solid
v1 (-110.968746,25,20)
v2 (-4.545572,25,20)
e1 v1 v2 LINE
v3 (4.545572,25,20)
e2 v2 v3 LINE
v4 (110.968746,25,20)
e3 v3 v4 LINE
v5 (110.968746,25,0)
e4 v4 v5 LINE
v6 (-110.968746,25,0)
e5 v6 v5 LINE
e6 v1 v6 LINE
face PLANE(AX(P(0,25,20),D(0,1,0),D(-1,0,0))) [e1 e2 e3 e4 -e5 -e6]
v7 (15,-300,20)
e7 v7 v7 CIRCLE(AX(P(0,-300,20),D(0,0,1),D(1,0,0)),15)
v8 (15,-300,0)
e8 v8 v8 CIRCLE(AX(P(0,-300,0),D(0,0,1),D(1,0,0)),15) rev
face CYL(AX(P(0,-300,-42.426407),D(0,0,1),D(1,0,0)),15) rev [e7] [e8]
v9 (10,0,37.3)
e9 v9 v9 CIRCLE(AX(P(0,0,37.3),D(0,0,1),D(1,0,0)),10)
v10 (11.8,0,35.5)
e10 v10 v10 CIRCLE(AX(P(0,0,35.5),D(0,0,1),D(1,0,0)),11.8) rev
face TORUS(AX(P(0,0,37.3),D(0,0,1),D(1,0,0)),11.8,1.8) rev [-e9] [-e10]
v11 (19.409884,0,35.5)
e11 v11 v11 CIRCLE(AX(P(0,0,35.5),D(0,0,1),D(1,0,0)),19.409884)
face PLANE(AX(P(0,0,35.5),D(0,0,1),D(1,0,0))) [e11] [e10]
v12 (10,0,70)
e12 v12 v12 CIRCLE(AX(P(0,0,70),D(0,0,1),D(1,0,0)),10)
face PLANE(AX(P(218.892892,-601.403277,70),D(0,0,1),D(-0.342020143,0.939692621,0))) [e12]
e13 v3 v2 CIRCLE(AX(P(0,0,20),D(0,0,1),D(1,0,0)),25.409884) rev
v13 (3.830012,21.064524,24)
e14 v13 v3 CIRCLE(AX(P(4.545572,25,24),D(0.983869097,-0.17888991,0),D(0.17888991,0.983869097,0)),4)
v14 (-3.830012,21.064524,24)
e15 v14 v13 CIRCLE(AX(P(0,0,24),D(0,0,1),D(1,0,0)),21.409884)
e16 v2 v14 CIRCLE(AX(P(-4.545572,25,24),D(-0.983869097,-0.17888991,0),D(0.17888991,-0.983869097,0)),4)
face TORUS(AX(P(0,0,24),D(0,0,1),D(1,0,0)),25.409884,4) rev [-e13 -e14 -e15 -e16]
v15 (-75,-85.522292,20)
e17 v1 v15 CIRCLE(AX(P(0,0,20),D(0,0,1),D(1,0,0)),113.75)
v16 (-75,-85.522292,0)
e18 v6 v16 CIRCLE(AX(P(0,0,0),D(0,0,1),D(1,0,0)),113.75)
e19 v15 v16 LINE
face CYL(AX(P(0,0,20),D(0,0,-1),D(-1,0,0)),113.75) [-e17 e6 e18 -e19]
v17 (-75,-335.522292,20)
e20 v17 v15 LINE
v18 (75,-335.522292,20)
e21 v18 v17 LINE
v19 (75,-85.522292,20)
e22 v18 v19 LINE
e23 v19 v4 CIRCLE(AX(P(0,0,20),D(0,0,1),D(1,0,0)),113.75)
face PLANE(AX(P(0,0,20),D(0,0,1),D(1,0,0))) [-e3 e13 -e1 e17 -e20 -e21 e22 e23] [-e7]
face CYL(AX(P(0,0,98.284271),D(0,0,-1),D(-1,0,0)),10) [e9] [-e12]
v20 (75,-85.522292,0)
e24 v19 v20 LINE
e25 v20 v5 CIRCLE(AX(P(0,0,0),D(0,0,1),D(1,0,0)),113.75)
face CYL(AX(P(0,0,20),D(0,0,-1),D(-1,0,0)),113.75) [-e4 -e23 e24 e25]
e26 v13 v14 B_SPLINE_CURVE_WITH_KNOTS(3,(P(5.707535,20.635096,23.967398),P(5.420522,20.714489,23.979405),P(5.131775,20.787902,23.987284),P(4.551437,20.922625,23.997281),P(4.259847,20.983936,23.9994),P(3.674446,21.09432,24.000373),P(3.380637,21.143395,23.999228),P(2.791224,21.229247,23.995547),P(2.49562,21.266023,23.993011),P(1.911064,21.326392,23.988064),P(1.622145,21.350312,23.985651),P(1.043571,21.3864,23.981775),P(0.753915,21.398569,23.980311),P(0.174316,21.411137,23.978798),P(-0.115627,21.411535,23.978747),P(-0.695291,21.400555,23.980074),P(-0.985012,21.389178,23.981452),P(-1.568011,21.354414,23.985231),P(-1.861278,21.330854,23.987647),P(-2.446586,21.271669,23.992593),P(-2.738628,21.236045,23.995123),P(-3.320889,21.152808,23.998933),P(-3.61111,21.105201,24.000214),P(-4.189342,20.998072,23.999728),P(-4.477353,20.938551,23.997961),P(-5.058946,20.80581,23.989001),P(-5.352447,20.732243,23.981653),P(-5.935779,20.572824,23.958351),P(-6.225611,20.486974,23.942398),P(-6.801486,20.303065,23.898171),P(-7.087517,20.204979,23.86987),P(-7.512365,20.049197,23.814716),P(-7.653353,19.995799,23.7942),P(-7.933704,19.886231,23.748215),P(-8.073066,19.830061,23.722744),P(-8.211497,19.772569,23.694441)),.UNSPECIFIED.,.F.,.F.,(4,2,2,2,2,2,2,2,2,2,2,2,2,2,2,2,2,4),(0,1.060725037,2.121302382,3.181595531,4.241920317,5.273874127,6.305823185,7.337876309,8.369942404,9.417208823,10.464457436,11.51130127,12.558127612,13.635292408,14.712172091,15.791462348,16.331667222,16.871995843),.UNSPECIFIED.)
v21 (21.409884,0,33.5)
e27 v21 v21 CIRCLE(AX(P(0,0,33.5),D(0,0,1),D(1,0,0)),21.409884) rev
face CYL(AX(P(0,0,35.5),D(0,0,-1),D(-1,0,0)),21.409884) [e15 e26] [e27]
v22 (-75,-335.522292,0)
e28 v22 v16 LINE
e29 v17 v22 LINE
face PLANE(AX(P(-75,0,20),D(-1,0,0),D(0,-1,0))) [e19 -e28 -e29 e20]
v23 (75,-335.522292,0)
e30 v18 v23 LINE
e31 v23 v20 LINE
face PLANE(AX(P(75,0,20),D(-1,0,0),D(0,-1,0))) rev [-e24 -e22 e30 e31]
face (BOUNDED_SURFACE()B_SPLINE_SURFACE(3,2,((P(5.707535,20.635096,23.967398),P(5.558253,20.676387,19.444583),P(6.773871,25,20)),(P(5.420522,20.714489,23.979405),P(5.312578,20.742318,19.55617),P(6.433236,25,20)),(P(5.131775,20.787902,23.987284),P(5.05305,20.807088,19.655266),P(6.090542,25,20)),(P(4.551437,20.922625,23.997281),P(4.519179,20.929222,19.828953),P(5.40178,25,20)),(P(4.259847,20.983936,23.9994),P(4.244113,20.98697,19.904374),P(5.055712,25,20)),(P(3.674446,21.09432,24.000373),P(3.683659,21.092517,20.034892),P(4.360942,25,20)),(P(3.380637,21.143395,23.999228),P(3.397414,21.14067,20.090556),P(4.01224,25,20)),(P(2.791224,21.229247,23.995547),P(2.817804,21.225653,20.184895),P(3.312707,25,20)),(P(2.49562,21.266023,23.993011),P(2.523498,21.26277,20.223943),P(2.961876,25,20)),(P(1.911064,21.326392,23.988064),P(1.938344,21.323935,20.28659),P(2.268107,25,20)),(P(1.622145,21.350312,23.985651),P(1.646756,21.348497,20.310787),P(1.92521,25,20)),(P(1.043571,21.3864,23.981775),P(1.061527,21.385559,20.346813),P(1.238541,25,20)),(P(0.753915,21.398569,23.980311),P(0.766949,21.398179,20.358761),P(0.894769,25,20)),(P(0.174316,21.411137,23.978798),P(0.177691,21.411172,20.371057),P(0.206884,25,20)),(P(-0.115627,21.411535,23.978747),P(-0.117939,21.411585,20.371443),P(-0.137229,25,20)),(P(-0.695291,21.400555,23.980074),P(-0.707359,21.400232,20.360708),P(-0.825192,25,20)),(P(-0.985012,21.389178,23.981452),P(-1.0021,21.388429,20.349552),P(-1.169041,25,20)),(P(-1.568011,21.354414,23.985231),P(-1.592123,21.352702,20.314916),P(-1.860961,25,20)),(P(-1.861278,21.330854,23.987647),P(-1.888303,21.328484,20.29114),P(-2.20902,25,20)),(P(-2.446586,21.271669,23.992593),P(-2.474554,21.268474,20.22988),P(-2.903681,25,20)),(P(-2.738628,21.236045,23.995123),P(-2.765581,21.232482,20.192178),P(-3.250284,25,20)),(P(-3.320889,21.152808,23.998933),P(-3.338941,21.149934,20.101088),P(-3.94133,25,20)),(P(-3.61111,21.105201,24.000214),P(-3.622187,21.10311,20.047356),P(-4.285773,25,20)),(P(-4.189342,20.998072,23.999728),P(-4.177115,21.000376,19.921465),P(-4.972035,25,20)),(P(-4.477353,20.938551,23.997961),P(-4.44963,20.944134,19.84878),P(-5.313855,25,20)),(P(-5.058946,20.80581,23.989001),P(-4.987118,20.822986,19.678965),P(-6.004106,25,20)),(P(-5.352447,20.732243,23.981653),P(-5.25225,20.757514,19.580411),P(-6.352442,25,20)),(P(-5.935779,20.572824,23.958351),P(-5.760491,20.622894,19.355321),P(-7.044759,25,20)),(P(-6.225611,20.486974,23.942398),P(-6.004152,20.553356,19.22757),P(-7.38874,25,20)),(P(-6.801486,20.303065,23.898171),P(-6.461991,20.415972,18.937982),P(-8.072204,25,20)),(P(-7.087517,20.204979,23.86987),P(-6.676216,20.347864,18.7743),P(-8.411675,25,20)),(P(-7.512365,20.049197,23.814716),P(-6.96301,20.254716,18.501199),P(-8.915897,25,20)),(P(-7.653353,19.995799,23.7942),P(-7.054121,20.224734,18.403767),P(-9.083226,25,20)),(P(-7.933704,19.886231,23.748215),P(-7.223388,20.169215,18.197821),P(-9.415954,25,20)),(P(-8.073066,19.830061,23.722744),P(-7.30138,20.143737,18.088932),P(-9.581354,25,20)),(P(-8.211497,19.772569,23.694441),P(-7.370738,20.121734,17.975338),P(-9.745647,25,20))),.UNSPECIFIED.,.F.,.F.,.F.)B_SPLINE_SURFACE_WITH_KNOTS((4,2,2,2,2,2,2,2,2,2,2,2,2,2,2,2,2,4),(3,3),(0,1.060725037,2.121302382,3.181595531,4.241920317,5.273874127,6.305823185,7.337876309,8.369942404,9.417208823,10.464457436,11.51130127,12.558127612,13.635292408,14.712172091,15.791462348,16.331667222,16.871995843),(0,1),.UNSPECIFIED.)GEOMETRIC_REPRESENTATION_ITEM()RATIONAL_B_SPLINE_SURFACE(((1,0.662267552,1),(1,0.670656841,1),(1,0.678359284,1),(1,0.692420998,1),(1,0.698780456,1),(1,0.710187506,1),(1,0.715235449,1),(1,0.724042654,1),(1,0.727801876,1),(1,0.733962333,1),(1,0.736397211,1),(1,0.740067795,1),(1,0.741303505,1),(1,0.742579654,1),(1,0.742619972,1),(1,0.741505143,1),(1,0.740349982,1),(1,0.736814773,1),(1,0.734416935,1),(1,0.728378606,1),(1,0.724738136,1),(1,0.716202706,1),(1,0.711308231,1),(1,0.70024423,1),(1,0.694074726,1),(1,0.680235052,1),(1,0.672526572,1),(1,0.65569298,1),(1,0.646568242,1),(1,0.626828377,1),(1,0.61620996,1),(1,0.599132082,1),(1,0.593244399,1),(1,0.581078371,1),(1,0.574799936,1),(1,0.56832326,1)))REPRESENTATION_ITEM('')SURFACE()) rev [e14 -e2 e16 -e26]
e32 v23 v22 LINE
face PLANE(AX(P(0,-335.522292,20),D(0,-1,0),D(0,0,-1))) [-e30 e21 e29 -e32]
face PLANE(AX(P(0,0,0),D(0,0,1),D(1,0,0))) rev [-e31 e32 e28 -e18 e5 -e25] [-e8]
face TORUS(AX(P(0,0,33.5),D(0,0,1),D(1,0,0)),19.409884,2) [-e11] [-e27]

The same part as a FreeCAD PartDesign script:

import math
import FreeCAD as App
import Part
import Sketcher

V = App.Vector


def edges_at(feature, points):
    """Names of the edges that pass closest to the given points."""
    edges = feature.Shape.Edges
    near = lambda p: min(range(len(edges)), key=lambda i: edges[i].distToShape(Part.Vertex(*p))[0])
    return sorted({f"Edge{near(p) + 1}" for p in points})

doc = App.newDocument("Part")
body = doc.addObject("PartDesign::Body", "Body")

sketch1 = body.newObject("Sketcher::SketchObject", "Sketch")
sketch1.AttachmentSupport = (doc.getObject("XY_Plane"), [""])
sketch1.MapMode = "FlatFace"
sketch1.addGeometry([
    Part.LineSegment(V(-75, -336, 0), V(75, -336, 0)),
    Part.LineSegment(V(75, -336, 0), V(75, -86, 0)),
    Part.ArcOfCircle(Part.Circle(V(0, 0, 0), V(0, 0, 1), 114), math.radians(-49), math.radians(13)),
    Part.LineSegment(V(111, 25, 0), V(-111, 25, 0)),
    Part.ArcOfCircle(Part.Circle(V(0, 0, 0), V(0, 0, 1), 114), math.radians(167), math.radians(229)),
    Part.LineSegment(V(-75, -86, 0), V(-75, -336, 0)),
], False)
sketch1.addConstraint([
    Sketcher.Constraint("Coincident", 0, 2, 1, 1),
    Sketcher.Constraint("Coincident", 1, 2, 2, 1),
    Sketcher.Constraint("Coincident", 2, 2, 3, 1),
    Sketcher.Constraint("Coincident", 3, 2, 4, 1),
    Sketcher.Constraint("Coincident", 4, 2, 5, 1),
    Sketcher.Constraint("Coincident", 5, 2, 0, 1),
    Sketcher.Constraint("Horizontal", 0),
    Sketcher.Constraint("Vertical", 1),
    Sketcher.Constraint("Horizontal", 3),
    Sketcher.Constraint("Vertical", 5),
    Sketcher.Constraint("Coincident", 2, 3, -1, 1),
    Sketcher.Constraint("Coincident", 4, 3, -1, 1),
    Sketcher.Constraint("Equal", 2, 4),
    Sketcher.Constraint("Horizontal", 1, 2, 4, 2),
    Sketcher.Constraint("DistanceX", 0, 1, 0, 2, 150.0),
    Sketcher.Constraint("DistanceY", 1, 1, 1, 2, 250.0),
    Sketcher.Constraint("Radius", 2, 113.75),
    Sketcher.Constraint("DistanceY", -1, 1, 2, 2, 25.0),
])
pad1 = body.newObject("PartDesign::Pad", "Pad")
pad1.Profile = sketch1
pad1.Length = 20

sketch2 = body.newObject("Sketcher::SketchObject", "Sketch001")
sketch2.AttachmentSupport = (doc.getObject("XY_Plane"), [""])
sketch2.MapMode = "FlatFace"
sketch2.AttachmentOffset = App.Placement(V(0, 0, 20), App.Rotation())
sketch2.addGeometry(Part.Circle(V(0, 0, 0), V(0, 0, 1), 10), False)
sketch2.addConstraint([
    Sketcher.Constraint("Coincident", 0, 3, -1, 1),
    Sketcher.Constraint("Diameter", 0, 20.0),
])
pad2 = body.newObject("PartDesign::Pad", "Pad001")
pad2.Profile = sketch2
pad2.Length = 50

sketch3 = body.newObject("Sketcher::SketchObject", "Sketch002")
sketch3.AttachmentSupport = (doc.getObject("XY_Plane"), [""])
sketch3.MapMode = "FlatFace"
sketch3.AttachmentOffset = App.Placement(V(0, 0, 20), App.Rotation())
sketch3.addGeometry(Part.Circle(V(0, -300, 0), V(0, 0, 1), 15), False)
sketch3.addConstraint([
    Sketcher.Constraint("PointOnObject", 0, 3, -2),
    Sketcher.Constraint("Diameter", 0, 30.0),
    Sketcher.Constraint("DistanceY", 0, 3, -1, 1, 300.0),
])
pocket1 = body.newObject("PartDesign::Pocket", "Pocket")
pocket1.Profile = sketch3
pocket1.Length = 20

sketch4 = body.newObject("Sketcher::SketchObject", "Sketch003")
sketch4.AttachmentSupport = (doc.getObject("XY_Plane"), [""])
sketch4.MapMode = "FlatFace"
sketch4.AttachmentOffset = App.Placement(V(0, 0, 20), App.Rotation())
sketch4.addGeometry(Part.Circle(V(0, 0, 0), V(0, 0, 1), 21), False)
sketch4.addConstraint([
    Sketcher.Constraint("Coincident", 0, 3, -1, 1),
    Sketcher.Constraint("Diameter", 0, 42.819769),
])
pad3 = body.newObject("PartDesign::Pad", "Pad002")
pad3.Profile = sketch4
pad3.Length = 15.5
doc.recompute()

fillet = body.newObject("PartDesign::Fillet", "Fillet")
fillet.Base = (pad3, edges_at(pad3, [(-10, 0, 35.5)]))
fillet.Radius = 1.8
doc.recompute()

fillet2 = body.newObject("PartDesign::Fillet", "Fillet001")
fillet2.Base = (fillet, edges_at(fillet, [(-21.41, 0, 20)]))
fillet2.Radius = 4
doc.recompute()

fillet3 = body.newObject("PartDesign::Fillet", "Fillet002")
fillet3.Base = (fillet2, edges_at(fillet2, [(-21.41, 0, 35.5)]))
fillet3.Radius = 2

doc.recompute()
